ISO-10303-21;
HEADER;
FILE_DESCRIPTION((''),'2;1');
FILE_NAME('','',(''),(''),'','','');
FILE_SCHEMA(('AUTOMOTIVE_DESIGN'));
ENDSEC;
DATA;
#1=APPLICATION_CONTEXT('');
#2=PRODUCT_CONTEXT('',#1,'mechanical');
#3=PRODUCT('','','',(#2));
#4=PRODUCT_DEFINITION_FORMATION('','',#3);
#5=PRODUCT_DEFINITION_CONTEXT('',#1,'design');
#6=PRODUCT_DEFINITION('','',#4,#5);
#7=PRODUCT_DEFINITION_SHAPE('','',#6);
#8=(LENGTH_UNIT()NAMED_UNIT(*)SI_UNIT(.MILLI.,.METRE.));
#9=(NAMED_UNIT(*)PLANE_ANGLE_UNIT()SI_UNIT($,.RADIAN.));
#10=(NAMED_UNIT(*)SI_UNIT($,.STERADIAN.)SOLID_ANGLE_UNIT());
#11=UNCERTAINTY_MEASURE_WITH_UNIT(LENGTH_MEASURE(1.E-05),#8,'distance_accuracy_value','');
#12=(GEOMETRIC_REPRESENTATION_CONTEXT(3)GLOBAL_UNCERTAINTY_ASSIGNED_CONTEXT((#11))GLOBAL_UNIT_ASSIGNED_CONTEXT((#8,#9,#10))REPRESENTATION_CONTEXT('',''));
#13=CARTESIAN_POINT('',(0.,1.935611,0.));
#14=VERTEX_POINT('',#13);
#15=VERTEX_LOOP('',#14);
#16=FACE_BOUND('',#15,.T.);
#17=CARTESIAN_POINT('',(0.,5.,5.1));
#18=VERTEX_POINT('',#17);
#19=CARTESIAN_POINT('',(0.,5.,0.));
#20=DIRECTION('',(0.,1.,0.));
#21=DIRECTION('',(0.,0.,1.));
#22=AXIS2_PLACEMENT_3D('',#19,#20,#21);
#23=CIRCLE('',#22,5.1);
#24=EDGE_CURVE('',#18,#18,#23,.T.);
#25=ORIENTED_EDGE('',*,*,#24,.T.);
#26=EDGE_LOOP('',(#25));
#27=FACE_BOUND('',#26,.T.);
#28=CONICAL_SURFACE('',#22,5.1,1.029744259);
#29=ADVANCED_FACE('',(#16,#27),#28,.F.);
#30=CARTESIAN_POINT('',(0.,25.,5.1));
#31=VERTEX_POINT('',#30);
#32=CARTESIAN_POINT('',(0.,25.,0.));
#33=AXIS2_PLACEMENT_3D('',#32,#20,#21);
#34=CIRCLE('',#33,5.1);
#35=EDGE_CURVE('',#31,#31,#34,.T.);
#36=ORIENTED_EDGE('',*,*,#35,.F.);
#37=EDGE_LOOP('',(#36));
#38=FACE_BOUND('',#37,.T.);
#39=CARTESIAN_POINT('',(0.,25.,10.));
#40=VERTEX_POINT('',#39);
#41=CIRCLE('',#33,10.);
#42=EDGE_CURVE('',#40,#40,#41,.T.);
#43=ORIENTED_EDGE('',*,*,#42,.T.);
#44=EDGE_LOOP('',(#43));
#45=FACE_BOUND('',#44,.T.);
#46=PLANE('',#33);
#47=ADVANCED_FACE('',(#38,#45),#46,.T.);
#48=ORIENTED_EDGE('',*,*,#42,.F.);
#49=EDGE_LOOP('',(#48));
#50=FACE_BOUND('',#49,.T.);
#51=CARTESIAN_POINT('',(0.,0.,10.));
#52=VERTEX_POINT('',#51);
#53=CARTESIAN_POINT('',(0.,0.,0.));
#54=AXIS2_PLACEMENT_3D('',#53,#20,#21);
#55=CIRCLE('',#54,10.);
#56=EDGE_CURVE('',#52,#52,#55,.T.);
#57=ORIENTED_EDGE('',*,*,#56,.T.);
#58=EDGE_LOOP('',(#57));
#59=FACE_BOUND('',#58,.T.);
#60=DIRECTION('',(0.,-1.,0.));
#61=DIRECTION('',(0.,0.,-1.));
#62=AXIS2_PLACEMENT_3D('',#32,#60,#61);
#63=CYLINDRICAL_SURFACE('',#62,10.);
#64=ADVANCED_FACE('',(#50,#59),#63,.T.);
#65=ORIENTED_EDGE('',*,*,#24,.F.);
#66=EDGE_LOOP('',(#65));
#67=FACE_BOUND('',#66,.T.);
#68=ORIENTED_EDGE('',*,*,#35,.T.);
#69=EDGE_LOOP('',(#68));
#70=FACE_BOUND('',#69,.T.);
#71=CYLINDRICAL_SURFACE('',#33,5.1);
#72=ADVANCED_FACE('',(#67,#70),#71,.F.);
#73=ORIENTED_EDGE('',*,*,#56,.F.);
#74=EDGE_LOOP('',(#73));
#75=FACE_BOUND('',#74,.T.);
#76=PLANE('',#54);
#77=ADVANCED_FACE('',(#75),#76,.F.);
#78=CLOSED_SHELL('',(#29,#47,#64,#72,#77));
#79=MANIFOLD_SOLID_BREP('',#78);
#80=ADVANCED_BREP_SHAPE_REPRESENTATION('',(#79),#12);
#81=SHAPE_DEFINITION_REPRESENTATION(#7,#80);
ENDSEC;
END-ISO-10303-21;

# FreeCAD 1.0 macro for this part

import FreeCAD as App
import Part
import Sketcher
from FreeCAD import Vector
Q = App.Units.Quantity

doc = App.newDocument("Part")
body = doc.addObject("PartDesign::Body", "Body")

sketch1 = body.newObject("Sketcher::SketchObject", "Sketch")
sketch1.AttachmentSupport = (doc.getObject("XZ_Plane"), [""])
sketch1.MapMode = "FlatFace"
sketch1.addGeometry(Part.Circle(Vector(0, 0, 0), Vector(0, 0, 1), 10), False)
sketch1.addConstraint(Sketcher.Constraint("Coincident", 0, 3, -1, 1))
sketch1.addConstraint(Sketcher.Constraint("Diameter", 0, Q("20 mm")))
pad1 = body.newObject("PartDesign::Pad", "Pad")
pad1.Profile = sketch1
pad1.Length = 25
pad1.Reversed = True

sketch2 = body.newObject("Sketcher::SketchObject", "Sketch001")
sketch2.AttachmentSupport = (doc.getObject("XZ_Plane"), [""])
sketch2.MapMode = "FlatFace"
sketch2.AttachmentOffset = App.Placement(Vector(0, 0, -25), App.Rotation())
sketch2.addGeometry(Part.Circle(Vector(0, 0, 0), Vector(0, 0, 1), 5), False)
sketch2.addConstraint(Sketcher.Constraint("Coincident", 0, 3, -1, 1))
sketch2.addConstraint(Sketcher.Constraint("Diameter", 0, Q("10.2 mm")))
doc.recompute()
hole = body.newObject("PartDesign::Hole", "Hole")
hole.Profile = sketch2
hole.ThreadType = "None"
hole.Diameter = 10.2
hole.DepthType = "Dimension"
hole.Depth = 20
hole.DrillPoint = "Angled"
hole.DrillPointAngle = 118
hole.Reversed = True

doc.recompute()
